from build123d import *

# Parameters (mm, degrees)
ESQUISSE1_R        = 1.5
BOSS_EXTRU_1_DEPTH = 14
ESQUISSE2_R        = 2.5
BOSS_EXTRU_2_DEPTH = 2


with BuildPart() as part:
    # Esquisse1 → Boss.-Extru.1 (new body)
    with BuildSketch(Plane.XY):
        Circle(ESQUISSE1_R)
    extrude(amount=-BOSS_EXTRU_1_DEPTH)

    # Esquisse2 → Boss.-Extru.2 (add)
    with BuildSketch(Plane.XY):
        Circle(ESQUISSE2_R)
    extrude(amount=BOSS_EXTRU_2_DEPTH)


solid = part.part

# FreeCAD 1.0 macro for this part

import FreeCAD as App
import Part
import Sketcher

doc = App.newDocument("Part")
body = doc.addObject("PartDesign::Body", "Body")

# Sketch on XY plane
sketch1 = body.newObject("Sketcher::SketchObject", "Sketch")
sketch1.AttachmentSupport = (doc.getObject("XY_Plane"), [""])
sketch1.MapMode = "FlatFace"
sketch1.addGeometry(Part.Circle(App.Vector(0, 0, 0), App.Vector(0, 0, 1), 1.5), False)
sketch1.addConstraint([
    Sketcher.Constraint("Coincident", 0, 3, -1, 1),
    Sketcher.Constraint("Diameter", 0, 3.0),
])
pad1 = body.newObject("PartDesign::Pad", "Pad")
pad1.Profile = sketch1
pad1.Length = 14
pad1.Reversed = True

# Sketch on XY plane
sketch2 = body.newObject("Sketcher::SketchObject", "Sketch001")
sketch2.AttachmentSupport = (doc.getObject("XY_Plane"), [""])
sketch2.MapMode = "FlatFace"
sketch2.addGeometry(Part.Circle(App.Vector(0, 0, 0), App.Vector(0, 0, 1), 2.5), False)
sketch2.addConstraint([
    Sketcher.Constraint("Coincident", 0, 3, -1, 1),
    Sketcher.Constraint("Diameter", 0, 5.0),
])
pad2 = body.newObject("PartDesign::Pad", "Pad001")
pad2.Profile = sketch2
pad2.Length = 2

doc.recompute()
